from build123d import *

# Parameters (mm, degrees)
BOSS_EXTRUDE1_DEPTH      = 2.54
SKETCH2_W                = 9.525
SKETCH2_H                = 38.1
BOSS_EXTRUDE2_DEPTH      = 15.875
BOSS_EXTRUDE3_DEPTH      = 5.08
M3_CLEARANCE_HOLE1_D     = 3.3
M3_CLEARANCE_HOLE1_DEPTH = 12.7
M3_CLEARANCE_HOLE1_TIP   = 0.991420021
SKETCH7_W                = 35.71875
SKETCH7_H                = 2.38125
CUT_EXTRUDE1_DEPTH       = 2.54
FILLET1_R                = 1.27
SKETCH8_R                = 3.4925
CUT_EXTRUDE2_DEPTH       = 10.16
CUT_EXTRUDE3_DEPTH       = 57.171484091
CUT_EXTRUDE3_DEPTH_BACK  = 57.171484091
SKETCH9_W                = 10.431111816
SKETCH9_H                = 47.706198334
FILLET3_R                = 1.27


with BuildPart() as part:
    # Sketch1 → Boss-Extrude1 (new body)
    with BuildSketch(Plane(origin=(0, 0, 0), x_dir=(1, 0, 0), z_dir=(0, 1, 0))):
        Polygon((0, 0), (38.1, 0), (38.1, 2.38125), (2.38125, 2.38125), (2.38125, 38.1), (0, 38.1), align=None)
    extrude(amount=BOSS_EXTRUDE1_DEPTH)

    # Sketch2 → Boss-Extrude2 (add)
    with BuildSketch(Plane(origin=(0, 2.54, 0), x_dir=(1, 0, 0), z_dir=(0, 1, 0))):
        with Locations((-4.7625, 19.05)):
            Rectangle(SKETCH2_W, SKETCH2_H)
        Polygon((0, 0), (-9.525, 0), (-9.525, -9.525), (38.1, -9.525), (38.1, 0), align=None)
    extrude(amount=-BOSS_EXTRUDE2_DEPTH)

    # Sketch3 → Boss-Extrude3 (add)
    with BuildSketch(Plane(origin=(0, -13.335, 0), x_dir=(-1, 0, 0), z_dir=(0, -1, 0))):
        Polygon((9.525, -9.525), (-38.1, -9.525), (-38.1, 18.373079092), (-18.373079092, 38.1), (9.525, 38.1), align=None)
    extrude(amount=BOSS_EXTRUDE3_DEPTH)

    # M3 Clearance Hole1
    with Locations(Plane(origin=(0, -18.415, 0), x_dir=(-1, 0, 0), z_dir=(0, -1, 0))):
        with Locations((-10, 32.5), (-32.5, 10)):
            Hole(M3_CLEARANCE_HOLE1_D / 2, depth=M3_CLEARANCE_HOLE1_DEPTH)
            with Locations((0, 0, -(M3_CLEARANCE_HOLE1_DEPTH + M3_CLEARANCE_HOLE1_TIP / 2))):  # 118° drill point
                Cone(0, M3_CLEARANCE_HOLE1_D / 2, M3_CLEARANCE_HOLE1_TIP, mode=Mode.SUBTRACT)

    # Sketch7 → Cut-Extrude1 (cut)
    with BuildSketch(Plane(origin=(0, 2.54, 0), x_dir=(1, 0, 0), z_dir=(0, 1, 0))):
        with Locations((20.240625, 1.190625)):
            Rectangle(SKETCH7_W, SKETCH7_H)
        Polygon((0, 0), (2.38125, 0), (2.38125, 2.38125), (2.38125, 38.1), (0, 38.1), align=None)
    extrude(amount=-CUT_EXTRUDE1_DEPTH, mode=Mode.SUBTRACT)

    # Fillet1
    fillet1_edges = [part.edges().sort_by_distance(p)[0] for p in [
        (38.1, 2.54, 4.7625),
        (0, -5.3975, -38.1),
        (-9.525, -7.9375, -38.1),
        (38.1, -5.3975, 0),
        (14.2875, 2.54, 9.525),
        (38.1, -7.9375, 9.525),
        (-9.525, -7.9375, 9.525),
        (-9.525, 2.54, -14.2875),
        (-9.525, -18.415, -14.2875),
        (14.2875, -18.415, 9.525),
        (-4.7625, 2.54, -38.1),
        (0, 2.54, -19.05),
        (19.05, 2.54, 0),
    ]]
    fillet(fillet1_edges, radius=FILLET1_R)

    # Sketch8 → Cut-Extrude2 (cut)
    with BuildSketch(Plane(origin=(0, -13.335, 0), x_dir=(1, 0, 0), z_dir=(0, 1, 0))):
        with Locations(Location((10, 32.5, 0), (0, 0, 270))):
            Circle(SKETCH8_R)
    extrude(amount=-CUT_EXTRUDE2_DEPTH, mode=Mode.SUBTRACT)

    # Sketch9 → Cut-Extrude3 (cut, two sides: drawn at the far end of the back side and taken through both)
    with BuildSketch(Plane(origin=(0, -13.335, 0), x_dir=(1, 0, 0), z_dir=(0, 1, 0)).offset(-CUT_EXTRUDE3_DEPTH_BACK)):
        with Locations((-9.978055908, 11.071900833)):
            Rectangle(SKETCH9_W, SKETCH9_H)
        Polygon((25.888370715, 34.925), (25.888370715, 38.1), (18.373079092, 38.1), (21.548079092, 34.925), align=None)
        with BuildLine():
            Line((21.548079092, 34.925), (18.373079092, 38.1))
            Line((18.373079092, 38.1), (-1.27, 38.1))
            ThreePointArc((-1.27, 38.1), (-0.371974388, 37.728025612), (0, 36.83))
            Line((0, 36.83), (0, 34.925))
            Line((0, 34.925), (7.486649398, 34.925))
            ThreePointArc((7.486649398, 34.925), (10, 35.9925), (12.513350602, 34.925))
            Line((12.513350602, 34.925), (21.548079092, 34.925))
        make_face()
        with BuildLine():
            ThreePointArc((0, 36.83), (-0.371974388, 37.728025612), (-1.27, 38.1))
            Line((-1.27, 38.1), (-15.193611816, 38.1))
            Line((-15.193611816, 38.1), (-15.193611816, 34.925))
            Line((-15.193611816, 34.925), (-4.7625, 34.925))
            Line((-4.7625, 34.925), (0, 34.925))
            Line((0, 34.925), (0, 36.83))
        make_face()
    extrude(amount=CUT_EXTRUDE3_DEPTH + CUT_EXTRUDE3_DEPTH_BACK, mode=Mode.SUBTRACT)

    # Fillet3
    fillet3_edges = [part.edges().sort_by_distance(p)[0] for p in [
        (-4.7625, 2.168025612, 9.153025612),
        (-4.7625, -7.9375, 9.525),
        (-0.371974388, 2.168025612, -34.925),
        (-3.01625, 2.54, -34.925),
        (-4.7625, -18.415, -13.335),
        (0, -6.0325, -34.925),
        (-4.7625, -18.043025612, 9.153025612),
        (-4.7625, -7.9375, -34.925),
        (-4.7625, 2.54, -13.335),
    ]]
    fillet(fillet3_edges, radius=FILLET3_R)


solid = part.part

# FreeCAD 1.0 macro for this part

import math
import FreeCAD as App
import Part
import Sketcher
from FreeCAD import Vector
Q = App.Units.Quantity


def edges_at(feature, points):
    """Names of the edges that pass closest to the given points."""
    edges = feature.Shape.Edges
    near = lambda p: min(range(len(edges)), key=lambda i: edges[i].distToShape(Part.Vertex(*p))[0])
    return sorted({f"Edge{near(p) + 1}" for p in points})


def add_polygon(sketch, points):
    """Adds a closed chain of lines whose ends are joined by coincident constraints."""
    first, n = sketch.GeometryCount, len(points)
    for a, b in zip(points, points[1:] + points[:1]):
        sketch.addGeometry(Part.LineSegment(App.Vector(*a, 0), App.Vector(*b, 0)), False)
    for i in range(n):
        sketch.addConstraint(Sketcher.Constraint("Coincident", first + i, 2, first + (i + 1) % n, 1))

doc = App.newDocument("Part")
body = doc.addObject("PartDesign::Body", "Body")

sketch1 = body.newObject("Sketcher::SketchObject", "Sketch")
sketch1.AttachmentSupport = (doc.getObject("XZ_Plane"), [""])
sketch1.MapMode = "FlatFace"
add_polygon(sketch1, [(0, 0), (38.1, 0), (38.1, -2.4), (2.4, -2.4), (2.4, -38.1), (0, -38.1)])
sketch1.addConstraint([
    Sketcher.Constraint("Horizontal", 0),
    Sketcher.Constraint("Vertical", 1),
    Sketcher.Constraint("Horizontal", 2),
    Sketcher.Constraint("Vertical", 3),
    Sketcher.Constraint("Horizontal", 4),
    Sketcher.Constraint("Vertical", 5),
    Sketcher.Constraint("Coincident", 5, 2, -1, 1),
    Sketcher.Constraint("Equal", 4, 1),
    Sketcher.Constraint("Equal", 2, 3),
    Sketcher.Constraint("DistanceX", 0, 1, 0, 2, Q("1.5 in")),
    Sketcher.Constraint("DistanceX", 2, 2, 2, 1, Q("1.40625 in")),
])
pad1 = body.newObject("PartDesign::Pad", "Pad")
pad1.Profile = sketch1
pad1.Length = Q("0.1 in")
pad1.Reversed = True

sketch2 = body.newObject("Sketcher::SketchObject", "Sketch001")
sketch2.AttachmentSupport = (doc.getObject("XZ_Plane"), [""])
sketch2.MapMode = "FlatFace"
sketch2.AttachmentOffset = App.Placement(Vector(0, 0, -0.1 * 25.4), App.Rotation())
add_polygon(sketch2, [(-10, -38), (-10, 10), (38, 10), (38, 0), (0, 0), (0, -38)])
sketch2.addConstraint([
    Sketcher.Constraint("Vertical", 0),
    Sketcher.Constraint("Horizontal", 1),
    Sketcher.Constraint("Vertical", 2),
    Sketcher.Constraint("Horizontal", 3),
    Sketcher.Constraint("Vertical", 4),
    Sketcher.Constraint("Horizontal", 5),
    Sketcher.Constraint("Coincident", 3, 2, -1, 1),
    Sketcher.Constraint("Equal", 1, 0),
    Sketcher.Constraint("Equal", 5, 2),
    Sketcher.Constraint("DistanceX", 3, 2, 3, 1, Q("1.5 in")),
    Sketcher.Constraint("DistanceX", 1, 1, 1, 2, Q("1.875 in")),
])
pad2 = body.newObject("PartDesign::Pad", "Pad001")
pad2.Profile = sketch2
pad2.Length = Q("0.625 in")

sketch3 = body.newObject("Sketcher::SketchObject", "Sketch002")
sketch3.AttachmentSupport = (doc.getObject("XZ_Plane"), [""])
sketch3.MapMode = "FlatFace"
sketch3.AttachmentOffset = App.Placement(Vector(0, 0, 0.525 * 25.4), App.Rotation())
add_polygon(sketch3, [(38, 10), (-10, 10), (-10, -38), (18, -38), (38, -18)])
sketch3.addConstraint([
    Sketcher.Constraint("Horizontal", 0),
    Sketcher.Constraint("Vertical", 1),
    Sketcher.Constraint("Horizontal", 2),
    Sketcher.Constraint("Vertical", 4),
    Sketcher.Constraint("Equal", 0, 1),
    Sketcher.Constraint("Equal", 2, 4),
    Sketcher.Constraint("DistanceY", 1, 2, -1, 1, Q("1.5 in")),
    Sketcher.Constraint("DistanceX", -1, 1, 3, 2, Q("1.5 in")),
    Sketcher.Constraint("DistanceX", 0, 2, 0, 1, Q("1.875 in")),
    Sketcher.Constraint("DistanceX", 2, 1, 2, 2, Q("27.898079 mm")),
])
pad3 = body.newObject("PartDesign::Pad", "Pad002")
pad3.Profile = sketch3
pad3.Length = Q("0.2 in")

sketch4 = body.newObject("Sketcher::SketchObject", "Sketch003")
sketch4.AttachmentSupport = (doc.getObject("XZ_Plane"), [""])
sketch4.MapMode = "FlatFace"
sketch4.AttachmentOffset = App.Placement(Vector(0, 0, 0.725 * 25.4), App.Rotation())
sketch4.addGeometry([
    Part.Circle(Vector(10, -32.5, 0), Vector(0, 0, 1), 1.6),
    Part.Circle(Vector(32.5, -10, 0), Vector(0, 0, 1), 1.6),
], False)
sketch4.addConstraint([
    Sketcher.Constraint("Equal", 0, 1),
    Sketcher.Constraint("Diameter", 0, Q("3.3 mm")),
    Sketcher.Constraint("DistanceX", -1, 1, 0, 3, Q("10 mm")),
    Sketcher.Constraint("DistanceY", 0, 3, -1, 1, Q("32.5 mm")),
    Sketcher.Constraint("DistanceX", -1, 1, 1, 3, Q("32.5 mm")),
    Sketcher.Constraint("DistanceY", 1, 3, -1, 1, Q("10 mm")),
])
doc.recompute()
hole = body.newObject("PartDesign::Hole", "Hole")
hole.Profile = sketch4
hole.ThreadType = "None"
hole.Diameter = 3.3
hole.DepthType = "Dimension"
hole.Depth = Q("0.5 in")
hole.DrillPoint = "Angled"
hole.DrillPointAngle = 118

sketch5 = body.newObject("Sketcher::SketchObject", "Sketch004")
sketch5.AttachmentSupport = (doc.getObject("XZ_Plane"), [""])
sketch5.MapMode = "FlatFace"
sketch5.AttachmentOffset = App.Placement(Vector(0, 0, -0.1 * 25.4), App.Rotation())
add_polygon(sketch5, [(38.1, 0), (38.1, -2.4), (2.4, -2.4), (2.4, -38.1), (0, -38.1), (0, 0)])
sketch5.addConstraint([
    Sketcher.Constraint("Vertical", 0),
    Sketcher.Constraint("Horizontal", 1),
    Sketcher.Constraint("Vertical", 2),
    Sketcher.Constraint("Horizontal", 3),
    Sketcher.Constraint("Vertical", 4),
    Sketcher.Constraint("Horizontal", 5),
    Sketcher.Constraint("Coincident", 4, 2, -1, 1),
    Sketcher.Constraint("Equal", 3, 0),
    Sketcher.Constraint("Equal", 1, 2),
    Sketcher.Constraint("DistanceX", 5, 1, 5, 2, Q("1.5 in")),
    Sketcher.Constraint("DistanceX", 1, 2, 1, 1, Q("1.40625 in")),
])
pocket1 = body.newObject("PartDesign::Pocket", "Pocket")
pocket1.Profile = sketch5
pocket1.Length = Q("0.1 in")
pocket1.Reversed = True
doc.recompute()

fillet = body.newObject("PartDesign::Fillet", "Fillet")
fillet.Base = (pocket1, edges_at(pocket1, [
    (38.1, 2.54, 4.763),
    (0, -5.397, -38.1),
    (-9.525, -7.938, -38.1),
    (38.1, -5.397, 0),
    (14.287, 2.54, 9.525),
    (38.1, -7.938, 9.525),
    (-9.525, -7.938, 9.525),
    (-9.525, 2.54, -14.287),
    (-9.525, -18.415, -14.287),
    (14.287, -18.415, 9.525),
    (-4.763, 2.54, -38.1),
    (0, 2.54, -19.05),
    (19.05, 2.54, 0),
]))
fillet.Radius = Q("0.05 in")

sketch6 = body.newObject("Sketcher::SketchObject", "Sketch005")
sketch6.AttachmentSupport = (doc.getObject("XZ_Plane"), [""])
sketch6.MapMode = "FlatFace"
sketch6.AttachmentOffset = App.Placement(Vector(0, 0, 0.525 * 25.4), App.Rotation())
sketch6.addGeometry(Part.Circle(Vector(10, -32.5, 0), Vector(0, 0, 1), 3.5), False)
sketch6.addConstraint([
    Sketcher.Constraint("Diameter", 0, Q("0.275 in")),
    Sketcher.Constraint("DistanceX", -1, 1, 0, 3, Q("10 mm")),
    Sketcher.Constraint("DistanceY", 0, 3, -1, 1, Q("32.5 mm")),
])
pocket2 = body.newObject("PartDesign::Pocket", "Pocket001")
pocket2.Profile = sketch6
pocket2.Length = Q("0.4 in")
pocket2.Reversed = True

sketch7 = body.newObject("Sketcher::SketchObject", "Sketch006")
sketch7.AttachmentSupport = (doc.getObject("XZ_Plane"), [""])
sketch7.MapMode = "FlatFace"
sketch7.AttachmentOffset = App.Placement(Vector(0, 0, 0.525 * 25.4), App.Rotation())
sketch7.addGeometry([
    Part.LineSegment(Vector(-15.2, 12.8, 0), Vector(-4.8, 12.8, 0)),
    Part.LineSegment(Vector(-4.8, 12.8, 0), Vector(-4.8, -34.9, 0)),
    Part.LineSegment(Vector(-4.8, -34.9, 0), Vector(7.5, -34.9, 0)),
    Part.ArcOfCircle(Part.Circle(Vector(10, -32.5, 0), Vector(0, 0, 1), 3.5), math.radians(-136), math.radians(-44)),
    Part.LineSegment(Vector(12.5, -34.9, 0), Vector(25.9, -34.9, 0)),
    Part.LineSegment(Vector(25.9, -34.9, 0), Vector(25.9, -38.1, 0)),
    Part.LineSegment(Vector(25.9, -38.1, 0), Vector(-15.2, -38.1, 0)),
    Part.LineSegment(Vector(-15.2, -38.1, 0), Vector(-15.2, 12.8, 0)),
], False)
sketch7.addConstraint([
    Sketcher.Constraint("Coincident", 0, 2, 1, 1),
    Sketcher.Constraint("Coincident", 1, 2, 2, 1),
    Sketcher.Constraint("Coincident", 2, 2, 3, 1),
    Sketcher.Constraint("Coincident", 3, 2, 4, 1),
    Sketcher.Constraint("Coincident", 4, 2, 5, 1),
    Sketcher.Constraint("Coincident", 5, 2, 6, 1),
    Sketcher.Constraint("Coincident", 6, 2, 7, 1),
    Sketcher.Constraint("Coincident", 7, 2, 0, 1),
    Sketcher.Constraint("Horizontal", 0),
    Sketcher.Constraint("Vertical", 1),
    Sketcher.Constraint("Horizontal", 2),
    Sketcher.Constraint("Horizontal", 4),
    Sketcher.Constraint("Vertical", 5),
    Sketcher.Constraint("Horizontal", 6),
    Sketcher.Constraint("Vertical", 7),
    Sketcher.Constraint("Horizontal", 2, 2, 3, 2),
    Sketcher.Constraint("DistanceY", 5, 2, -1, 1, Q("1.5 in")),
    Sketcher.Constraint("Radius", 3, Q("0.1375 in")),
    Sketcher.Constraint("DistanceY", 5, 2, 5, 1, Q("0.125 in")),
    Sketcher.Constraint("DistanceX", 0, 2, -1, 1, Q("0.1875 in")),
    Sketcher.Constraint("DistanceY", 1, 2, 1, 1, Q("47.706198 mm")),
    Sketcher.Constraint("DistanceX", 0, 1, 0, 2, Q("10.431112 mm")),
    Sketcher.Constraint("DistanceX", 2, 1, 2, 2, Q("12.249149 mm")),
    Sketcher.Constraint("DistanceX", 4, 1, 4, 2, Q("13.37502 mm")),
    Sketcher.Constraint("DistanceX", -1, 1, 3, 3, Q("10 mm")),
])
pocket3 = body.newObject("PartDesign::Pocket", "Pocket002")
pocket3.Profile = sketch7
pocket3.Type = "ThroughAll"
pocket3.Midplane = True
doc.recompute()

fillet2 = body.newObject("PartDesign::Fillet", "Fillet001")
fillet2.Base = (pocket3, edges_at(pocket3, [
    (-4.763, 2.168, 9.153),
    (-4.763, -7.938, 9.525),
    (-0.372, 2.168, -34.925),
    (-3.016, 2.54, -34.925),
    (-4.763, -18.415, -13.335),
    (0, -6.032, -34.925),
    (-4.763, -18.043, 9.153),
    (-4.763, -7.938, -34.925),
    (-4.763, 2.54, -13.335),
]))
fillet2.Radius = Q("0.05 in")

doc.recompute()
